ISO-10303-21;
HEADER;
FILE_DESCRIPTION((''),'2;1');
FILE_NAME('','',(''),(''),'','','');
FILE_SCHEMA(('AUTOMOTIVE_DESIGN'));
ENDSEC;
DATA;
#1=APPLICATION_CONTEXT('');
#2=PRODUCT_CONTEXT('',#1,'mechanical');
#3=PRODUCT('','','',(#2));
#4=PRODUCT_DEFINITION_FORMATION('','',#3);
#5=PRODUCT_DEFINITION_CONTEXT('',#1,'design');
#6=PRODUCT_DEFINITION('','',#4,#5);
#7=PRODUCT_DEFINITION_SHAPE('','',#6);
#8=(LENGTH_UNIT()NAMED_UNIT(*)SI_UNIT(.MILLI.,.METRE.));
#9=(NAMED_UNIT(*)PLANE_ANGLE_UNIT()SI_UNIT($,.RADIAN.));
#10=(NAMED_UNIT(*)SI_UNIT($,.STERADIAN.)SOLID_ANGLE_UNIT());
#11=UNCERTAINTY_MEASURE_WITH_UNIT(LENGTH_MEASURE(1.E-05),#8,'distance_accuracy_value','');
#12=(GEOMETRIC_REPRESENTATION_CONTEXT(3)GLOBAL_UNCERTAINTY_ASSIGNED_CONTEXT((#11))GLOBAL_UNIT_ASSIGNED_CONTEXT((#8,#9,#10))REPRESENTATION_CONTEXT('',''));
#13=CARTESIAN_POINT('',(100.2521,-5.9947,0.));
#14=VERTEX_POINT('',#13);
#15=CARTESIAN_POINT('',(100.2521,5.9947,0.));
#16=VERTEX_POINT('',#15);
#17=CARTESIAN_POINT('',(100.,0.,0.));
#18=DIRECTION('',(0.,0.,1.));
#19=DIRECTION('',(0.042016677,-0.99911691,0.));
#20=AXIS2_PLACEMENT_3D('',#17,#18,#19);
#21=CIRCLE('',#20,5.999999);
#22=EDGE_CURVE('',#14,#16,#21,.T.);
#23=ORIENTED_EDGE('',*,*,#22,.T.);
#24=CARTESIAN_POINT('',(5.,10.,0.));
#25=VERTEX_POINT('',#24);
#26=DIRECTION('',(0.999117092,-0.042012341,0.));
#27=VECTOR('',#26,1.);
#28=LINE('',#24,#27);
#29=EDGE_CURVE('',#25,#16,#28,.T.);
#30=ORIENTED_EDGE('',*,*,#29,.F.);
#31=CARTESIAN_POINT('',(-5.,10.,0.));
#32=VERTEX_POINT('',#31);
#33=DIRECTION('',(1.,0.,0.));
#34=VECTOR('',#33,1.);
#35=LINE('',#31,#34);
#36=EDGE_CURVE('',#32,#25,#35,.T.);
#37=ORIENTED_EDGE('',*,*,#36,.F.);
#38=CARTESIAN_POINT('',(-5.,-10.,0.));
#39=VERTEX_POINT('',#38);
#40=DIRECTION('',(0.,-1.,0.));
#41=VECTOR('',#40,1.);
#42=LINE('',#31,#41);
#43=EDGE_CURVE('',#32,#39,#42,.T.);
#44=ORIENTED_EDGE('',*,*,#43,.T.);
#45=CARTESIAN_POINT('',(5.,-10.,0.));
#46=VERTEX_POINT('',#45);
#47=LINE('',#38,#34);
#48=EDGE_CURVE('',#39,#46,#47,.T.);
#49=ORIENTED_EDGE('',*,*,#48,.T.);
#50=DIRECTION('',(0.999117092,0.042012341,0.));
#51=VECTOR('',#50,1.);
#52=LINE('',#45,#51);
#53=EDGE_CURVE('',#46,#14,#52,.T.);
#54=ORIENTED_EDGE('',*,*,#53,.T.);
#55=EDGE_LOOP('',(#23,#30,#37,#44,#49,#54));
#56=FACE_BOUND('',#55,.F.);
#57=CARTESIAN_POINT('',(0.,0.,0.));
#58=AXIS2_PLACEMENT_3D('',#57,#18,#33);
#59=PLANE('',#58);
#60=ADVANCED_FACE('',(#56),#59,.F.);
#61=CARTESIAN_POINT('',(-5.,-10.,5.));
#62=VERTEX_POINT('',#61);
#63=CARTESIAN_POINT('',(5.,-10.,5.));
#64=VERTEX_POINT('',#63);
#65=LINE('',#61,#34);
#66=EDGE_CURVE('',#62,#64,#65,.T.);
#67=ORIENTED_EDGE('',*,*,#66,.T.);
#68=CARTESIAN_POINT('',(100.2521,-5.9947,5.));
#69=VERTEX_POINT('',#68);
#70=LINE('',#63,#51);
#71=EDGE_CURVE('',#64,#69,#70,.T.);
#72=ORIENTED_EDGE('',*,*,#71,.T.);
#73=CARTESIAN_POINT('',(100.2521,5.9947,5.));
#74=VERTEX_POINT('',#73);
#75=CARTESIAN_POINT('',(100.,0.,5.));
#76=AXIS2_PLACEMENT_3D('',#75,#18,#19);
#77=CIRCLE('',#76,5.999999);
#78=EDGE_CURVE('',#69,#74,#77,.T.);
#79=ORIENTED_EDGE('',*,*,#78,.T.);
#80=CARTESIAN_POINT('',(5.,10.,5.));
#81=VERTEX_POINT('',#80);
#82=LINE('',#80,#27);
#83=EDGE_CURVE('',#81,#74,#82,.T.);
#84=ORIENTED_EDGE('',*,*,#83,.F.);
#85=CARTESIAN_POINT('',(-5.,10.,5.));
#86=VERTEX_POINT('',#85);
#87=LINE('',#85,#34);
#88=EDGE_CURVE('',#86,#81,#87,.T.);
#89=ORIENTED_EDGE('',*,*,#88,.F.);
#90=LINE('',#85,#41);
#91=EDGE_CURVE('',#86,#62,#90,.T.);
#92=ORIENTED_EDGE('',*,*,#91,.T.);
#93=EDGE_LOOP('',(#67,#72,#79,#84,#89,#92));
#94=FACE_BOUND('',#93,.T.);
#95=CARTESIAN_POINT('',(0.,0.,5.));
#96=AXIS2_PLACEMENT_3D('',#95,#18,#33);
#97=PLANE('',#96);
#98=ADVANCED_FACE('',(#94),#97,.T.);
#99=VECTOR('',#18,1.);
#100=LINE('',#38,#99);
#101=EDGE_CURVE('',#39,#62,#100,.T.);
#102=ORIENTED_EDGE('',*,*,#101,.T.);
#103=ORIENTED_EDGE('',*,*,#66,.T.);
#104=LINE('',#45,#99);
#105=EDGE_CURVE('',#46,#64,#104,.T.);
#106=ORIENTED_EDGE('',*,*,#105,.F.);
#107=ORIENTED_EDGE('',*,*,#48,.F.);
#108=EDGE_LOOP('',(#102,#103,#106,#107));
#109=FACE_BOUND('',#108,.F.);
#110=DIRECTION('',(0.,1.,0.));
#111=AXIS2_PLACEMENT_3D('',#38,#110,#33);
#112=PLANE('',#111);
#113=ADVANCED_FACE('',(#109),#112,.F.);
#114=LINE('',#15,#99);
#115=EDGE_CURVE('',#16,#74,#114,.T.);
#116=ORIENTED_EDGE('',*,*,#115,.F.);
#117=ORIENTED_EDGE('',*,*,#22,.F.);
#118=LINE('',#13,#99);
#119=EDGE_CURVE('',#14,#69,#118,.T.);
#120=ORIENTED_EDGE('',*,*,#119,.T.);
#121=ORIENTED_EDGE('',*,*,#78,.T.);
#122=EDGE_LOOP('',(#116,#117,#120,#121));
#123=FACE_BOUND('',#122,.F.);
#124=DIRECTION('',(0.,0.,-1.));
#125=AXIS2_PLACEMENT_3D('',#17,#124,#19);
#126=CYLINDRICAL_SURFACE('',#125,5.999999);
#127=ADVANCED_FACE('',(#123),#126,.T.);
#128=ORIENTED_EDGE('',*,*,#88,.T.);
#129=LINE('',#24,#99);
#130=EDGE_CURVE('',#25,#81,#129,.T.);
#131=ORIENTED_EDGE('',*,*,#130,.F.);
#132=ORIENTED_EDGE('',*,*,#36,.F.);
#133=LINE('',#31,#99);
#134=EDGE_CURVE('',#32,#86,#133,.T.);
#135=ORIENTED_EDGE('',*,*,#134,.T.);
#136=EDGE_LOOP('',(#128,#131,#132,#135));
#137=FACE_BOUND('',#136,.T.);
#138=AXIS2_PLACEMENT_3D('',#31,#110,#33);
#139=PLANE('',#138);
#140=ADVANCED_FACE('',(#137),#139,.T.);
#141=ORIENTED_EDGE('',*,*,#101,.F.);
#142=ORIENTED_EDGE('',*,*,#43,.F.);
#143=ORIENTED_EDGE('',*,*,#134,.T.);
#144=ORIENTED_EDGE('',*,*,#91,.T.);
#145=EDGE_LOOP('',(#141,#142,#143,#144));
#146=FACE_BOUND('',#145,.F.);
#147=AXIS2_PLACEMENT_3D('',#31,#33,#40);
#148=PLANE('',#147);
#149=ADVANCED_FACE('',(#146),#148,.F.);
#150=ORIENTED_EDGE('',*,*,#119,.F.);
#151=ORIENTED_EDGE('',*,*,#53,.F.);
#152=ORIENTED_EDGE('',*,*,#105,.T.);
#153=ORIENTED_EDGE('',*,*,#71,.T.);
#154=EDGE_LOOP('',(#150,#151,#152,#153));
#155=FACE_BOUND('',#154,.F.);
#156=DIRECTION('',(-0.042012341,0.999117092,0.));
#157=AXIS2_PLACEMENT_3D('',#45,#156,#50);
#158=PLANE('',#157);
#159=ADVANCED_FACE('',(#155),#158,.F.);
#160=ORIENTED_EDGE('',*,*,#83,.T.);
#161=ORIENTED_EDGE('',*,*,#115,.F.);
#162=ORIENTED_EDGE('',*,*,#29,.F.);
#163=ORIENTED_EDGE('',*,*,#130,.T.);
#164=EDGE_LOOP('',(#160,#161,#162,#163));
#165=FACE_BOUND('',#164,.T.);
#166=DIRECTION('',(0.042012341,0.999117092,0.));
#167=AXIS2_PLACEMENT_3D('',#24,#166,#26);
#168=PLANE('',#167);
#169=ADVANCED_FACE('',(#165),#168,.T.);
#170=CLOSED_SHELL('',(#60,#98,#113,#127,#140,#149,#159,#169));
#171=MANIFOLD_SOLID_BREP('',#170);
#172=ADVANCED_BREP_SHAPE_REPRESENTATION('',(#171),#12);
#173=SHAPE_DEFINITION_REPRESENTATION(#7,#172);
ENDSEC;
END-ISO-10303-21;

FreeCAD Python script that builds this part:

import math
import FreeCAD as App
import Part
import Sketcher
from FreeCAD import Vector
Q = App.Units.Quantity

doc = App.newDocument("Part")
body = doc.addObject("PartDesign::Body", "Body")

sketch1 = body.newObject("Sketcher::SketchObject", "Sketch")
sketch1.AttachmentSupport = (doc.getObject("XY_Plane"), [""])
sketch1.MapMode = "FlatFace"
sketch1.addGeometry([
    Part.LineSegment(Vector(5, 10, 0), Vector(-5, 10, 0)),
    Part.LineSegment(Vector(-5, 10, 0), Vector(-5, -10, 0)),
    Part.LineSegment(Vector(-5, -10, 0), Vector(5, -10, 0)),
    Part.LineSegment(Vector(5, -10, 0), Vector(100.2521, -5.9947, 0)),
    Part.ArcOfCircle(Part.Circle(Vector(100, 0, 0), Vector(0, 0, 1), 5.999999), math.radians(-87.591913), math.radians(87.591913)),
    Part.LineSegment(Vector(100.2521, 5.9947, 0), Vector(5, 10, 0)),
    Part.Circle(Vector(0, -5, 0), Vector(0, 0, 1), 1.55),
    Part.Circle(Vector(0, 5, 0), Vector(0, 0, 1), 1.55),
    Part.Circle(Vector(100, 0, 0), Vector(0, 0, 1), 1.55),
], False)
sketch1.addConstraint([
    Sketcher.Constraint("Coincident", 0, 2, 1, 1),
    Sketcher.Constraint("Coincident", 1, 2, 2, 1),
    Sketcher.Constraint("Coincident", 2, 2, 3, 1),
    Sketcher.Constraint("Tangent", 3, 2, 4, 1),
    Sketcher.Constraint("Tangent", 4, 2, 5, 1),
    Sketcher.Constraint("Coincident", 5, 2, 0, 1),
    Sketcher.Constraint("Horizontal", 0),
    Sketcher.Constraint("Vertical", 1),
    Sketcher.Constraint("Horizontal", 2),
    Sketcher.Constraint("Coincident", 8, 3, 4, 3),
    Sketcher.Constraint("Equal", 6, 7),
    Sketcher.Constraint("Equal", 7, 8),
    Sketcher.Constraint("Symmetric", 6, 3, 7, 3, -1, 1),
    Sketcher.Constraint("Symmetric", 0, 2, 2, 2, -1, 1),
    Sketcher.Constraint("Symmetric", 3, 2, 4, 2, -1),
    Sketcher.Constraint("PointOnObject", 6, 3, -2),
    Sketcher.Constraint("Radius", 4, Q("6 mm")),
    Sketcher.Constraint("Diameter", 6, Q("3.1 mm")),
    Sketcher.Constraint("DistanceX", 0, 2, 0, 1, Q("10 mm")),
    Sketcher.Constraint("DistanceX", -1, 1, 4, 3, Q("100 mm")),
    Sketcher.Constraint("DistanceY", -1, 1, 0, 2, Q("10 mm")),
    Sketcher.Constraint("DistanceY", 6, 3, 7, 3, Q("10 mm")),
])
pad1 = body.newObject("PartDesign::Pad", "Pad")
pad1.Profile = sketch1
pad1.Length = 5

sketch2 = body.newObject("Sketcher::SketchObject", "Sketch001")
sketch2.AttachmentSupport = (doc.getObject("XY_Plane"), [""])
sketch2.MapMode = "FlatFace"
sketch2.AttachmentOffset = App.Placement(Vector(0, 0, 5), App.Rotation())
sketch2.addGeometry([
    Part.Circle(Vector(100, 0, 0), Vector(0, 0, 1), 1.55),
    Part.Circle(Vector(0, -5, 0), Vector(0, 0, 1), 1.55),
    Part.Circle(Vector(0, 5, 0), Vector(0, 0, 1), 1.55),
], False)
sketch2.addConstraint([
    Sketcher.Constraint("Equal", 0, 1),
    Sketcher.Constraint("Equal", 1, 2),
    Sketcher.Constraint("Symmetric", 1, 3, 2, 3, -1, 1),
    Sketcher.Constraint("PointOnObject", 0, 3, -1),
    Sketcher.Constraint("PointOnObject", 1, 3, -2),
    Sketcher.Constraint("Diameter", 0, Q("3.1 mm")),
    Sketcher.Constraint("DistanceX", -1, 1, 0, 3, Q("100 mm")),
    Sketcher.Constraint("DistanceY", 1, 3, -1, 1, Q("5 mm")),
])
pad2 = body.newObject("PartDesign::Pad", "Pad001")
pad2.Profile = sketch2
pad2.Length = 5
pad2.Reversed = True

doc.recompute()
